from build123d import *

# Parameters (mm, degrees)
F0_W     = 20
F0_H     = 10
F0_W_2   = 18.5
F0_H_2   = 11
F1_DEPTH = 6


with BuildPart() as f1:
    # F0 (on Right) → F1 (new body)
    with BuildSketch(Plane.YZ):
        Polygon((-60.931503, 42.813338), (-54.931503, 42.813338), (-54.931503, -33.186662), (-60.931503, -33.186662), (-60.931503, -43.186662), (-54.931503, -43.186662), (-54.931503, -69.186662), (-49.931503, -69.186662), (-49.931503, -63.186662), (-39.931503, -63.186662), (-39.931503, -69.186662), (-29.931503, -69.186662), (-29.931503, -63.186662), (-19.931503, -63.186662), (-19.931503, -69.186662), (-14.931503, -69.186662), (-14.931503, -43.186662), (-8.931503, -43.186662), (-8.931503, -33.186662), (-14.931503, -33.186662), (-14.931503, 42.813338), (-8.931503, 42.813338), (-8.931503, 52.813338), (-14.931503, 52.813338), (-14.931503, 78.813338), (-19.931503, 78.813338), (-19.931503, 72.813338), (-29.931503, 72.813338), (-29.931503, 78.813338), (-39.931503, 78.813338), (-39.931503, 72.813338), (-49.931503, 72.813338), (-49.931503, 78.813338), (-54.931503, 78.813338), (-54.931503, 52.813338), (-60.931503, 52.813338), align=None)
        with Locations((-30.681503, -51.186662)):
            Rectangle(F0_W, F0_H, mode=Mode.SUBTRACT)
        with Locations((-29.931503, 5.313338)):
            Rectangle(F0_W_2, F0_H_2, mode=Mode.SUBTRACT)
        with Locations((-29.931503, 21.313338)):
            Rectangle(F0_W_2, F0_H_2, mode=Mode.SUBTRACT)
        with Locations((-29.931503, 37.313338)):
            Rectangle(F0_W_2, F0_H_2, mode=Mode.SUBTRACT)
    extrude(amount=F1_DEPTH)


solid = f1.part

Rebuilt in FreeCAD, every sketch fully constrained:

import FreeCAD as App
import Part
import Sketcher

V = App.Vector
Q = App.Units.Quantity

doc = App.newDocument("Part")
body = doc.addObject("PartDesign::Body", "Body")

sketch1 = doc.addObject("Sketcher::SketchObject", "Sketch")
body.addObject(sketch1)
sketch1.AttachmentSupport = (doc.YZ_Plane, [""])
sketch1.MapMode = "FlatFace"
sketch1.addGeometry([
    Part.LineSegment(V(-61, 43, 0), V(-55, 43, 0)),
    Part.LineSegment(V(-55, 43, 0), V(-55, -33, 0)),
    Part.LineSegment(V(-55, -33, 0), V(-61, -33, 0)),
    Part.LineSegment(V(-61, -33, 0), V(-61, -43, 0)),
    Part.LineSegment(V(-61, -43, 0), V(-55, -43, 0)),
    Part.LineSegment(V(-55, -43, 0), V(-55, -69, 0)),
    Part.LineSegment(V(-55, -69, 0), V(-50, -69, 0)),
    Part.LineSegment(V(-50, -69, 0), V(-50, -63, 0)),
    Part.LineSegment(V(-50, -63, 0), V(-40, -63, 0)),
    Part.LineSegment(V(-40, -63, 0), V(-40, -69, 0)),
    Part.LineSegment(V(-40, -69, 0), V(-30, -69, 0)),
    Part.LineSegment(V(-30, -69, 0), V(-30, -63, 0)),
    Part.LineSegment(V(-30, -63, 0), V(-20, -63, 0)),
    Part.LineSegment(V(-20, -63, 0), V(-20, -69, 0)),
    Part.LineSegment(V(-20, -69, 0), V(-15, -69, 0)),
    Part.LineSegment(V(-15, -69, 0), V(-15, -43, 0)),
    Part.LineSegment(V(-15, -43, 0), V(-9, -43, 0)),
    Part.LineSegment(V(-9, -43, 0), V(-9, -33, 0)),
    Part.LineSegment(V(-9, -33, 0), V(-15, -33, 0)),
    Part.LineSegment(V(-15, -33, 0), V(-15, 43, 0)),
    Part.LineSegment(V(-15, 43, 0), V(-9, 43, 0)),
    Part.LineSegment(V(-9, 43, 0), V(-9, 53, 0)),
    Part.LineSegment(V(-9, 53, 0), V(-15, 53, 0)),
    Part.LineSegment(V(-15, 53, 0), V(-15, 79, 0)),
    Part.LineSegment(V(-15, 79, 0), V(-20, 79, 0)),
    Part.LineSegment(V(-20, 79, 0), V(-20, 73, 0)),
    Part.LineSegment(V(-20, 73, 0), V(-30, 73, 0)),
    Part.LineSegment(V(-30, 73, 0), V(-30, 79, 0)),
    Part.LineSegment(V(-30, 79, 0), V(-40, 79, 0)),
    Part.LineSegment(V(-40, 79, 0), V(-40, 73, 0)),
    Part.LineSegment(V(-40, 73, 0), V(-50, 73, 0)),
    Part.LineSegment(V(-50, 73, 0), V(-50, 79, 0)),
    Part.LineSegment(V(-50, 79, 0), V(-55, 79, 0)),
    Part.LineSegment(V(-55, 79, 0), V(-55, 53, 0)),
    Part.LineSegment(V(-55, 53, 0), V(-61, 53, 0)),
    Part.LineSegment(V(-61, 53, 0), V(-61, 43, 0)),
    Part.LineSegment(V(-21, -56, 0), V(-41, -56, 0)),
    Part.LineSegment(V(-41, -56, 0), V(-41, -46, 0)),
    Part.LineSegment(V(-41, -46, 0), V(-21, -46, 0)),
    Part.LineSegment(V(-21, -46, 0), V(-21, -56, 0)),
    Part.LineSegment(V(-21, 0, 0), V(-39, 0, 0)),
    Part.LineSegment(V(-39, 0, 0), V(-39, 11, 0)),
    Part.LineSegment(V(-39, 11, 0), V(-21, 11, 0)),
    Part.LineSegment(V(-21, 11, 0), V(-21, 0, 0)),
    Part.LineSegment(V(-21, 16, 0), V(-39, 16, 0)),
    Part.LineSegment(V(-39, 16, 0), V(-39, 27, 0)),
    Part.LineSegment(V(-39, 27, 0), V(-21, 27, 0)),
    Part.LineSegment(V(-21, 27, 0), V(-21, 16, 0)),
    Part.LineSegment(V(-21, 32, 0), V(-39, 32, 0)),
    Part.LineSegment(V(-39, 32, 0), V(-39, 43, 0)),
    Part.LineSegment(V(-39, 43, 0), V(-21, 43, 0)),
    Part.LineSegment(V(-21, 43, 0), V(-21, 32, 0)),
], False)
sketch1.addConstraint([
    Sketcher.Constraint("Coincident", 0, 2, 1, 1),
    Sketcher.Constraint("Coincident", 1, 2, 2, 1),
    Sketcher.Constraint("Coincident", 2, 2, 3, 1),
    Sketcher.Constraint("Coincident", 3, 2, 4, 1),
    Sketcher.Constraint("Coincident", 4, 2, 5, 1),
    Sketcher.Constraint("Coincident", 5, 2, 6, 1),
    Sketcher.Constraint("Coincident", 6, 2, 7, 1),
    Sketcher.Constraint("Coincident", 7, 2, 8, 1),
    Sketcher.Constraint("Coincident", 8, 2, 9, 1),
    Sketcher.Constraint("Coincident", 9, 2, 10, 1),
    Sketcher.Constraint("Coincident", 10, 2, 11, 1),
    Sketcher.Constraint("Coincident", 11, 2, 12, 1),
    Sketcher.Constraint("Coincident", 12, 2, 13, 1),
    Sketcher.Constraint("Coincident", 13, 2, 14, 1),
    Sketcher.Constraint("Coincident", 14, 2, 15, 1),
    Sketcher.Constraint("Coincident", 15, 2, 16, 1),
    Sketcher.Constraint("Coincident", 16, 2, 17, 1),
    Sketcher.Constraint("Coincident", 17, 2, 18, 1),
    Sketcher.Constraint("Coincident", 18, 2, 19, 1),
    Sketcher.Constraint("Coincident", 19, 2, 20, 1),
    Sketcher.Constraint("Coincident", 20, 2, 21, 1),
    Sketcher.Constraint("Coincident", 21, 2, 22, 1),
    Sketcher.Constraint("Coincident", 22, 2, 23, 1),
    Sketcher.Constraint("Coincident", 23, 2, 24, 1),
    Sketcher.Constraint("Coincident", 24, 2, 25, 1),
    Sketcher.Constraint("Coincident", 25, 2, 26, 1),
    Sketcher.Constraint("Coincident", 26, 2, 27, 1),
    Sketcher.Constraint("Coincident", 27, 2, 28, 1),
    Sketcher.Constraint("Coincident", 28, 2, 29, 1),
    Sketcher.Constraint("Coincident", 29, 2, 30, 1),
    Sketcher.Constraint("Coincident", 30, 2, 31, 1),
    Sketcher.Constraint("Coincident", 31, 2, 32, 1),
    Sketcher.Constraint("Coincident", 32, 2, 33, 1),
    Sketcher.Constraint("Coincident", 33, 2, 34, 1),
    Sketcher.Constraint("Coincident", 34, 2, 35, 1),
    Sketcher.Constraint("Coincident", 35, 2, 0, 1),
    Sketcher.Constraint("Coincident", 36, 2, 37, 1),
    Sketcher.Constraint("Coincident", 37, 2, 38, 1),
    Sketcher.Constraint("Coincident", 38, 2, 39, 1),
    Sketcher.Constraint("Coincident", 39, 2, 36, 1),
    Sketcher.Constraint("Coincident", 40, 2, 41, 1),
    Sketcher.Constraint("Coincident", 41, 2, 42, 1),
    Sketcher.Constraint("Coincident", 42, 2, 43, 1),
    Sketcher.Constraint("Coincident", 43, 2, 40, 1),
    Sketcher.Constraint("Coincident", 44, 2, 45, 1),
    Sketcher.Constraint("Coincident", 45, 2, 46, 1),
    Sketcher.Constraint("Coincident", 46, 2, 47, 1),
    Sketcher.Constraint("Coincident", 47, 2, 44, 1),
    Sketcher.Constraint("Coincident", 48, 2, 49, 1),
    Sketcher.Constraint("Coincident", 49, 2, 50, 1),
    Sketcher.Constraint("Coincident", 50, 2, 51, 1),
    Sketcher.Constraint("Coincident", 51, 2, 48, 1),
    Sketcher.Constraint("Horizontal", 0),
    Sketcher.Constraint("Vertical", 1),
    Sketcher.Constraint("Horizontal", 2),
    Sketcher.Constraint("Vertical", 3),
    Sketcher.Constraint("Horizontal", 4),
    Sketcher.Constraint("Vertical", 5),
    Sketcher.Constraint("Horizontal", 6),
    Sketcher.Constraint("Vertical", 7),
    Sketcher.Constraint("Horizontal", 8),
    Sketcher.Constraint("Vertical", 9),
    Sketcher.Constraint("Horizontal", 10),
    Sketcher.Constraint("Vertical", 11),
    Sketcher.Constraint("Horizontal", 12),
    Sketcher.Constraint("Vertical", 13),
    Sketcher.Constraint("Horizontal", 14),
    Sketcher.Constraint("Vertical", 15),
    Sketcher.Constraint("Horizontal", 16),
    Sketcher.Constraint("Vertical", 17),
    Sketcher.Constraint("Horizontal", 18),
    Sketcher.Constraint("Vertical", 19),
    Sketcher.Constraint("Horizontal", 20),
    Sketcher.Constraint("Vertical", 21),
    Sketcher.Constraint("Horizontal", 22),
    Sketcher.Constraint("Vertical", 23),
    Sketcher.Constraint("Horizontal", 24),
    Sketcher.Constraint("Vertical", 25),
    Sketcher.Constraint("Horizontal", 26),
    Sketcher.Constraint("Vertical", 27),
    Sketcher.Constraint("Horizontal", 28),
    Sketcher.Constraint("Vertical", 29),
    Sketcher.Constraint("Horizontal", 30),
    Sketcher.Constraint("Vertical", 31),
    Sketcher.Constraint("Horizontal", 32),
    Sketcher.Constraint("Vertical", 33),
    Sketcher.Constraint("Horizontal", 34),
    Sketcher.Constraint("Vertical", 35),
    Sketcher.Constraint("Horizontal", 36),
    Sketcher.Constraint("Vertical", 37),
    Sketcher.Constraint("Horizontal", 38),
    Sketcher.Constraint("Vertical", 39),
    Sketcher.Constraint("Horizontal", 40),
    Sketcher.Constraint("Vertical", 41),
    Sketcher.Constraint("Horizontal", 42),
    Sketcher.Constraint("Vertical", 43),
    Sketcher.Constraint("Horizontal", 44),
    Sketcher.Constraint("Vertical", 45),
    Sketcher.Constraint("Horizontal", 46),
    Sketcher.Constraint("Vertical", 47),
    Sketcher.Constraint("Horizontal", 48),
    Sketcher.Constraint("Vertical", 49),
    Sketcher.Constraint("Horizontal", 50),
    Sketcher.Constraint("Vertical", 51),
    Sketcher.Constraint("Horizontal", 6, 2, 9, 2),
    Sketcher.Constraint("Horizontal", 8, 2, 11, 2),
    Sketcher.Constraint("Horizontal", 10, 2, 13, 2),
    Sketcher.Constraint("Horizontal", 4, 2, 15, 2),
    Sketcher.Constraint("Horizontal", 2, 2, 17, 2),
    Sketcher.Constraint("Horizontal", 0, 2, 19, 2),
    Sketcher.Constraint("Horizontal", 24, 2, 27, 2),
    Sketcher.Constraint("Horizontal", 26, 2, 29, 2),
    Sketcher.Constraint("Horizontal", 28, 2, 31, 2),
    Sketcher.Constraint("Horizontal", 22, 2, 33, 2),
    Sketcher.Constraint("Horizontal", 35, 2, 49, 2),
    Sketcher.Constraint("Vertical", 1, 2, 4, 2),
    Sketcher.Constraint("Vertical", 15, 2, 18, 2),
    Sketcher.Constraint("Vertical", 17, 2, 20, 2),
    Sketcher.Constraint("Vertical", 19, 2, 22, 2),
    Sketcher.Constraint("Vertical", 13, 2, 24, 2),
    Sketcher.Constraint("Vertical", 11, 2, 26, 2),
    Sketcher.Constraint("Vertical", 9, 2, 28, 2),
    Sketcher.Constraint("Vertical", 7, 2, 30, 2),
    Sketcher.Constraint("Vertical", 5, 2, 32, 2),
    Sketcher.Constraint("Vertical", 3, 2, 34, 2),
    Sketcher.Constraint("Vertical", 39, 2, 42, 2),
    Sketcher.Constraint("Vertical", 41, 2, 44, 2),
    Sketcher.Constraint("Vertical", 43, 2, 46, 2),
    Sketcher.Constraint("Vertical", 45, 2, 48, 2),
    Sketcher.Constraint("Vertical", 47, 2, 50, 2),
    Sketcher.Constraint("Equal", 8, 10),
    Sketcher.Constraint("Equal", 10, 12),
    Sketcher.Constraint("Equal", 6, 14),
    Sketcher.Constraint("Equal", 4, 16),
    Sketcher.Constraint("Equal", 30, 3),
    Sketcher.Constraint("Equal", 34, 7),
    Sketcher.Constraint("Equal", 17, 21),
    Sketcher.Constraint("Equal", 15, 23),
    Sketcher.Constraint("Equal", 13, 25),
    Sketcher.Constraint("Equal", 35, 37),
    Sketcher.Constraint("Equal", 43, 45),
    Sketcher.Constraint("Equal", 47, 49),
    Sketcher.Constraint("DistanceX", 0, 1, 0, 2, Q("6 mm")),
    Sketcher.Constraint("DistanceX", 6, 1, 6, 2, Q("5 mm")),
    Sketcher.Constraint("DistanceX", 8, 1, 8, 2, Q("10 mm")),
    Sketcher.Constraint("DistanceX", 36, 2, 36, 1, Q("20 mm")),
    Sketcher.Constraint("DistanceY", 1, 2, 1, 1, Q("76 mm")),
    Sketcher.Constraint("DistanceY", 5, 2, 5, 1, Q("26 mm")),
    Sketcher.Constraint("DistanceY", 41, 1, 41, 2, Q("11 mm")),
    Sketcher.Constraint("DistanceX", 40, 2, 40, 1, Q("18.5 mm")),
    Sketcher.Constraint("DistanceY", 8, 2, 36, 2, Q("7 mm")),
    Sketcher.Constraint("DistanceY", 1, 2, 40, 2, Q("33 mm")),
    Sketcher.Constraint("DistanceY", 41, 2, 44, 2, Q("5 mm")),
    Sketcher.Constraint("DistanceX", 36, 2, 8, 2, Q("0.75 mm")),
    Sketcher.Constraint("DistanceY", -1, 1, 0, 2, Q("42.813338 mm")),
    Sketcher.Constraint("DistanceX", 0, 2, -1, 1, Q("54.931503 mm")),
])
pad1 = doc.addObject("PartDesign::Pad", "Pad")
body.addObject(pad1)
pad1.Profile = sketch1
pad1.Length = 6

doc.recompute()
